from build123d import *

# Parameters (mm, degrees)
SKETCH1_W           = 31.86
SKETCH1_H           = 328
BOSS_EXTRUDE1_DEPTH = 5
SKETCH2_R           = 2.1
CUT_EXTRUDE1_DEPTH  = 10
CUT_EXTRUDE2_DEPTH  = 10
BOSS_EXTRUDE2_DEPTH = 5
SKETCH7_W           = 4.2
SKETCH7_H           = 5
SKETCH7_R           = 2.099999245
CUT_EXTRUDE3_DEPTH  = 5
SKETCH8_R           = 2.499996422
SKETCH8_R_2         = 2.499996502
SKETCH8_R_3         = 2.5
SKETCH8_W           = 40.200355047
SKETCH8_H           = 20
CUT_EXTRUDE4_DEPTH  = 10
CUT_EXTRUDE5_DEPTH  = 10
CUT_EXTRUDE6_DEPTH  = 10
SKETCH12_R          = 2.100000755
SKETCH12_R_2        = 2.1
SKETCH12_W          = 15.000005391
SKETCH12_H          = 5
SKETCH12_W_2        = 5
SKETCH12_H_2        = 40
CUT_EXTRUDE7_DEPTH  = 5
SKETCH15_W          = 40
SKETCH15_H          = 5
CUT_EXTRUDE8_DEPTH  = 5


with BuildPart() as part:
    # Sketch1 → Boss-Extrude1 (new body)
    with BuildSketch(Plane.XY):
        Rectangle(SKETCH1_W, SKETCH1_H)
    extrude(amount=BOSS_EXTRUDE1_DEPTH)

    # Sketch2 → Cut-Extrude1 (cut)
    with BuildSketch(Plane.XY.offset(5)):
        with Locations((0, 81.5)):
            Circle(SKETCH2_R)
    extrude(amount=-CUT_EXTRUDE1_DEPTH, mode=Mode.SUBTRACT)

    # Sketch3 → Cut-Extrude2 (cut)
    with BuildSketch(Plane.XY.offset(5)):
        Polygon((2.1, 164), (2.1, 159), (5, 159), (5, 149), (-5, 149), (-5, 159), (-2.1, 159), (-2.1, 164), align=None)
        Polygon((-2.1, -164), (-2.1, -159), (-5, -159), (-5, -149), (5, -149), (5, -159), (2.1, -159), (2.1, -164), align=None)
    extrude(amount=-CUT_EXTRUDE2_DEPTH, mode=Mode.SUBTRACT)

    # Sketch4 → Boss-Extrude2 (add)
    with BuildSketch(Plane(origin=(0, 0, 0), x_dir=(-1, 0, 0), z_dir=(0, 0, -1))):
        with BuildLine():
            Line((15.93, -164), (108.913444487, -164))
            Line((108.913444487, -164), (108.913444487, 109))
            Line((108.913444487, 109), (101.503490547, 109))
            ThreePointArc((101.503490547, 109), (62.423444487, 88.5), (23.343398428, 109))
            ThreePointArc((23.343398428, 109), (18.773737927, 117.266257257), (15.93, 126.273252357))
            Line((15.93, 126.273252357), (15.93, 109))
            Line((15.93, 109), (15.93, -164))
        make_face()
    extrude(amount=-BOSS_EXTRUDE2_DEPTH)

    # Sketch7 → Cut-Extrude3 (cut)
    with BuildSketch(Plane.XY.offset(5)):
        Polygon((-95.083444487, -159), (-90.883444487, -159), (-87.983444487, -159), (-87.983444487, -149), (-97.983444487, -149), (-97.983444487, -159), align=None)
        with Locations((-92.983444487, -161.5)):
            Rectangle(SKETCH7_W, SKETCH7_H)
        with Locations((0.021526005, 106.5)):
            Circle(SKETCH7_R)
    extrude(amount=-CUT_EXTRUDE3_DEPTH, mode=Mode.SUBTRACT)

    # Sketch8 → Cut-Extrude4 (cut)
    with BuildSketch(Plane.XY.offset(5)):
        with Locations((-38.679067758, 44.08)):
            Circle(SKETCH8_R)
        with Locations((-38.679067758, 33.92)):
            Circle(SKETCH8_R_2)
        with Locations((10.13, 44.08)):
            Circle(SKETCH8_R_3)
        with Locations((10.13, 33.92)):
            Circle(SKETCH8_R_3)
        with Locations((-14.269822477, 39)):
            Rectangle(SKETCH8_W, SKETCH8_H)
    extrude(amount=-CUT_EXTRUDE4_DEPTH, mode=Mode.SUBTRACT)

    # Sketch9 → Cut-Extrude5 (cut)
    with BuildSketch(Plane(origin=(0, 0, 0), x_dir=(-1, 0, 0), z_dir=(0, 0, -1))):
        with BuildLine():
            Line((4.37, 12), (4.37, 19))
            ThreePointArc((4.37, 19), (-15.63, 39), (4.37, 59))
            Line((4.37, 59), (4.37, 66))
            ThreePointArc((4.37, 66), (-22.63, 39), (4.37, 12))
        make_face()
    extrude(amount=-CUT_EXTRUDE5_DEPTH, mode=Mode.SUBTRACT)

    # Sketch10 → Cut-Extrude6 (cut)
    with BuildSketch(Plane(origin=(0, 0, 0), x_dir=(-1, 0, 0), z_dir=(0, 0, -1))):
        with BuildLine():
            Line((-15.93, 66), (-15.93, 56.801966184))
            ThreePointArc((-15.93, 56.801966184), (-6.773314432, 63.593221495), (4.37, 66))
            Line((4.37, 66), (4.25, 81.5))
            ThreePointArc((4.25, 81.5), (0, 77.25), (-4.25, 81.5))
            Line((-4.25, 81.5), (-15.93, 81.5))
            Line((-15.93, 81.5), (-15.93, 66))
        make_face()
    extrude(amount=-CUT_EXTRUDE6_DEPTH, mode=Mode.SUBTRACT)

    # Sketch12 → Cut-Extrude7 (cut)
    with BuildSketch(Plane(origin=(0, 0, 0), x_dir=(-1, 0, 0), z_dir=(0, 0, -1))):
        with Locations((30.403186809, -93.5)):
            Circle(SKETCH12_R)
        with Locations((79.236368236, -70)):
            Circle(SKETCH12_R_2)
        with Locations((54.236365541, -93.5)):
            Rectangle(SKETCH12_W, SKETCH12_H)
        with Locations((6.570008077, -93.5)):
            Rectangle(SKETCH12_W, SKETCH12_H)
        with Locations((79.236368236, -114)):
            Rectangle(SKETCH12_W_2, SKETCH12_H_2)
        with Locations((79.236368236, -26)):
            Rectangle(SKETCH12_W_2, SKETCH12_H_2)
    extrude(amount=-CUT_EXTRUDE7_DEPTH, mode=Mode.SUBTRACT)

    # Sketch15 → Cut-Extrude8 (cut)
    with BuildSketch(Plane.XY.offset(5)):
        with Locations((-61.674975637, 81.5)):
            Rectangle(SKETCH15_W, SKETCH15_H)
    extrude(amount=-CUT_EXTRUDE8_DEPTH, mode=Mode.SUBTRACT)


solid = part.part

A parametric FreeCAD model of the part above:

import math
import FreeCAD as App
import Part
import Sketcher


def add_polygon(sketch, points):
    """Adds a closed chain of lines whose ends are joined by coincident constraints."""
    first, n = sketch.GeometryCount, len(points)
    for a, b in zip(points, points[1:] + points[:1]):
        sketch.addGeometry(Part.LineSegment(App.Vector(*a, 0), App.Vector(*b, 0)), False)
    for i in range(n):
        sketch.addConstraint(Sketcher.Constraint("Coincident", first + i, 2, first + (i + 1) % n, 1))

doc = App.newDocument("Part")
params = doc.addObject("Spreadsheet::Sheet", "Params")
for row, (alias, value) in enumerate([
    ("sketch1_height", "328 mm"),
    ("sketch1_width", "31.86 mm"),
    ("pad1_length", "5 mm"),
    ("sketch2_diameter", "4.2 mm"),
    ("pocket1_length", "10 mm"),
    ("sketch3_width", "10 mm"),
    ("sketch3_height", "5 mm"),
    ("sketch3_width2", "4.2 mm"),
    ("pocket2_length", "10 mm"),
    ("sketch4_radius", "47.5 mm"),
    ("sketch4_height", "273 mm"),
    ("pad2_length", "5 mm"),
    ("sketch5_diameter", "4.199998 mm"),
    ("sketch5_width", "10 mm"),
    ("sketch5_height", "5 mm"),
    ("sketch5_width2", "2.9 mm"),
    ("pocket3_length", "5 mm"),
    ("sketch6_diameter", "5 mm"),
    ("sketch6_height", "20 mm"),
    ("pocket4_length", "10 mm"),
    ("sketch7_radius", "20 mm"),
    ("sketch7_radius2", "27 mm"),
    ("pocket5_length", "10 mm"),
    ("sketch8_radius", "27 mm"),
    ("sketch8_radius2", "4.25 mm"),
    ("sketch8_width", "11.68 mm"),
    ("pocket6_length", "10 mm"),
    ("sketch9_diameter", "4.200002 mm"),
    ("sketch9_width", "5 mm"),
    ("sketch9_height", "40 mm"),
    ("pocket7_length", "5 mm"),
    ("sketch10_width", "40 mm"),
    ("sketch10_height", "5 mm"),
    ("pocket8_length", "5 mm"),
], start=1):
    params.set(f"A{row}", alias)
    params.set(f"B{row}", "=" + value)
    params.setAlias(f"B{row}", alias)

body = doc.addObject("PartDesign::Body", "Body")

# Sketch on XY plane
sketch1 = body.newObject("Sketcher::SketchObject", "Sketch")
sketch1.AttachmentSupport = (doc.getObject("XY_Plane"), [""])
sketch1.MapMode = "FlatFace"
add_polygon(sketch1, [(-16, 164), (-16, -164), (16, -164), (16, 164)])  # lines 0-3
sketch1.addConstraint([
    Sketcher.Constraint("Vertical", 0),
    Sketcher.Constraint("Horizontal", 1),
    Sketcher.Constraint("Vertical", 2),
    Sketcher.Constraint("Horizontal", 3),
    Sketcher.Constraint("Symmetric", 0, 2, 2, 2, -1, 1),
    Sketcher.Constraint("DistanceY", 0, 2, 0, 1, 328.0),
    Sketcher.Constraint("DistanceX", 1, 1, 1, 2, 31.86),
])
sketch1.setExpression("Constraints[9]", "Params.sketch1_height")
sketch1.setExpression("Constraints[10]", "Params.sketch1_width")
pad1 = body.newObject("PartDesign::Pad", "Pad")
pad1.Profile = sketch1
pad1.setExpression("Length", "Params.pad1_length")

# Sketch on XY plane
sketch2 = body.newObject("Sketcher::SketchObject", "Sketch001")
sketch2.AttachmentSupport = (doc.getObject("XY_Plane"), [""])
sketch2.MapMode = "FlatFace"
sketch2.AttachmentOffset = App.Placement(App.Vector(0, 0, 5), App.Rotation())
sketch2.addGeometry(Part.Circle(App.Vector(0, 81.5, 0), App.Vector(0, 0, 1), 2.1), False)
sketch2.addConstraint([
    Sketcher.Constraint("PointOnObject", 0, 3, -2),
    Sketcher.Constraint("Diameter", 0, 4.2),
    Sketcher.Constraint("DistanceY", -1, 1, 0, 3, 81.5),
])
sketch2.setExpression("Constraints[1]", "Params.sketch2_diameter")
pocket1 = body.newObject("PartDesign::Pocket", "Pocket")
pocket1.Profile = sketch2
pocket1.setExpression("Length", "Params.pocket1_length")

# Sketch on XY plane
sketch3 = body.newObject("Sketcher::SketchObject", "Sketch002")
sketch3.AttachmentSupport = (doc.getObject("XY_Plane"), [""])
sketch3.MapMode = "FlatFace"
sketch3.AttachmentOffset = App.Placement(App.Vector(0, 0, 5), App.Rotation())
add_polygon(sketch3, [(2.1, 159), (2.1, 164), (-2.1, 164), (-2.1, 159), (-5, 159), (-5, 149), (5, 149), (5, 159)])  # lines 0-7
add_polygon(sketch3, [(-2.1, -159), (-2.1, -164), (2.1, -164), (2.1, -159), (5, -159), (5, -149), (-5, -149), (-5, -159)])  # lines 8-15
sketch3.addConstraint([
    Sketcher.Constraint("Vertical", 0),
    Sketcher.Constraint("Horizontal", 1),
    Sketcher.Constraint("Vertical", 2),
    Sketcher.Constraint("Horizontal", 3),
    Sketcher.Constraint("Vertical", 4),
    Sketcher.Constraint("Horizontal", 5),
    Sketcher.Constraint("Vertical", 6),
    Sketcher.Constraint("Horizontal", 7),
    Sketcher.Constraint("Vertical", 8),
    Sketcher.Constraint("Horizontal", 9),
    Sketcher.Constraint("Vertical", 10),
    Sketcher.Constraint("Horizontal", 11),
    Sketcher.Constraint("Vertical", 12),
    Sketcher.Constraint("Horizontal", 13),
    Sketcher.Constraint("Vertical", 14),
    Sketcher.Constraint("Horizontal", 15),
    Sketcher.Constraint("Symmetric", 0, 2, 8, 2, -1, 1),
    Sketcher.Constraint("Symmetric", 2, 2, 10, 2, -1, 1),
    Sketcher.Constraint("Symmetric", 4, 2, 12, 2, -1, 1),
    Sketcher.Constraint("Symmetric", 6, 2, 14, 2, -1, 1),
    Sketcher.Constraint("Symmetric", 3, 2, 6, 2, -2),
    Sketcher.Constraint("Vertical", 2, 2, 8, 2),
    Sketcher.Constraint("Equal", 13, 4),
    Sketcher.Constraint("DistanceX", 5, 1, 5, 2, 10.0),
    Sketcher.Constraint("DistanceY", 0, 1, 0, 2, 5.0),
    Sketcher.Constraint("DistanceX", 1, 2, 1, 1, 4.2),
    Sketcher.Constraint("DistanceY", -1, 1, 0, 2, 164.0),
])
sketch3.setExpression("Constraints[39]", "Params.sketch3_width")
sketch3.setExpression("Constraints[40]", "Params.sketch3_height")
sketch3.setExpression("Constraints[41]", "Params.sketch3_width2")
pocket2 = body.newObject("PartDesign::Pocket", "Pocket001")
pocket2.Profile = sketch3
pocket2.setExpression("Length", "Params.pocket2_length")

# Sketch on XY plane
sketch4 = body.newObject("Sketcher::SketchObject", "Sketch003")
sketch4.AttachmentSupport = (doc.getObject("XY_Plane"), [""])
sketch4.MapMode = "FlatFace"
sketch4.addGeometry([
    Part.LineSegment(App.Vector(-16, -164, 0), App.Vector(-109, -164, 0)),  # 0
    Part.LineSegment(App.Vector(-109, -164, 0), App.Vector(-109, 109, 0)),  # 1
    Part.LineSegment(App.Vector(-109, 109, 0), App.Vector(-102, 109, 0)),  # 2
    Part.ArcOfCircle(Part.Circle(App.Vector(-62, 136, 0), App.Vector(0, 0, 1), 48), math.radians(-145), math.radians(-35)),  # 3
    Part.ArcOfCircle(Part.Circle(App.Vector(-62, 136, 0), App.Vector(0, 0, 1), 48), math.radians(-35), math.radians(-12)),  # 4
    Part.LineSegment(App.Vector(-16, 126, 0), App.Vector(-16, -164, 0)),  # 5
], False)
sketch4.addConstraint([
    Sketcher.Constraint("Coincident", 0, 2, 1, 1),
    Sketcher.Constraint("Coincident", 1, 2, 2, 1),
    Sketcher.Constraint("Coincident", 2, 2, 3, 1),
    Sketcher.Constraint("Tangent", 3, 2, 4, 1),
    Sketcher.Constraint("Coincident", 4, 2, 5, 1),
    Sketcher.Constraint("Coincident", 5, 2, 0, 1),
    Sketcher.Constraint("Horizontal", 0),
    Sketcher.Constraint("Vertical", 1),
    Sketcher.Constraint("Horizontal", 2),
    Sketcher.Constraint("Vertical", 5),
    Sketcher.Constraint("Equal", 3, 4),
    Sketcher.Constraint("Horizontal", 2, 2, 3, 2),
    Sketcher.Constraint("Radius", 3, 47.5),
    Sketcher.Constraint("DistanceY", 1, 1, 1, 2, 273.0),
    Sketcher.Constraint("DistanceY", -1, 1, 3, 3, 136.0),
    Sketcher.Constraint("DistanceY", 0, 2, -1, 1, 164.0),
    Sketcher.Constraint("DistanceX", 4, 2, -1, 1, 15.93),
    Sketcher.Constraint("DistanceX", 0, 2, 3, 3, 46.49),
    Sketcher.Constraint("DistanceX", 3, 2, -1, 1, 23.343398),
])
sketch4.setExpression("Constraints[12]", "Params.sketch4_radius")
sketch4.setExpression("Constraints[13]", "Params.sketch4_height")
pad2 = body.newObject("PartDesign::Pad", "Pad001")
pad2.Profile = sketch4
pad2.setExpression("Length", "Params.pad2_length")

# Sketch on XY plane
sketch5 = body.newObject("Sketcher::SketchObject", "Sketch004")
sketch5.AttachmentSupport = (doc.getObject("XY_Plane"), [""])
sketch5.MapMode = "FlatFace"
sketch5.AttachmentOffset = App.Placement(App.Vector(0, 0, 5), App.Rotation())
add_polygon(sketch5, [(-88, -159), (-88, -149), (-98, -149), (-98, -159), (-95.1, -159), (-95.1, -164), (-90.9, -164), (-90.9, -159)])  # lines 0-7
sketch5.addGeometry(Part.Circle(App.Vector(0, 106.5, 0), App.Vector(0, 0, 1), 2.1), False)  # 8
sketch5.addConstraint([
    Sketcher.Constraint("Vertical", 0),
    Sketcher.Constraint("Horizontal", 1),
    Sketcher.Constraint("Vertical", 2),
    Sketcher.Constraint("Horizontal", 3),
    Sketcher.Constraint("Vertical", 4),
    Sketcher.Constraint("Horizontal", 5),
    Sketcher.Constraint("Vertical", 6),
    Sketcher.Constraint("Horizontal", 7),
    Sketcher.Constraint("Horizontal", 3, 2, 6, 2),
    Sketcher.Constraint("Equal", 3, 7),
    Sketcher.Constraint("Equal", 1, 0),
    Sketcher.Constraint("Diameter", 8, 4.199998),
    Sketcher.Constraint("DistanceX", 1, 2, 1, 1, 10.0),
    Sketcher.Constraint("DistanceY", 4, 2, 4, 1, 5.0),
    Sketcher.Constraint("DistanceX", 3, 1, 3, 2, 2.9),
    Sketcher.Constraint("DistanceY", 0, 2, -1, 1, 149.0),
    Sketcher.Constraint("DistanceY", -1, 1, 8, 3, 106.5),
    Sketcher.Constraint("DistanceX", 0, 2, 8, 3, 88.00497),
    Sketcher.Constraint("DistanceX", -1, 1, 8, 3, 0.021526),
])
sketch5.setExpression("Constraints[19]", "Params.sketch5_diameter")
sketch5.setExpression("Constraints[20]", "Params.sketch5_width")
sketch5.setExpression("Constraints[21]", "Params.sketch5_height")
sketch5.setExpression("Constraints[22]", "Params.sketch5_width2")
pocket3 = body.newObject("PartDesign::Pocket", "Pocket002")
pocket3.Profile = sketch5
pocket3.setExpression("Length", "Params.pocket3_length")

# Sketch on XY plane
sketch6 = body.newObject("Sketcher::SketchObject", "Sketch005")
sketch6.AttachmentSupport = (doc.getObject("XY_Plane"), [""])
sketch6.MapMode = "FlatFace"
sketch6.AttachmentOffset = App.Placement(App.Vector(0, 0, 5), App.Rotation())
sketch6.addGeometry(Part.Circle(App.Vector(-38.7, 44.1, 0), App.Vector(0, 0, 1), 2.5), False)  # 0
sketch6.addGeometry(Part.Circle(App.Vector(-38.7, 33.9, 0), App.Vector(0, 0, 1), 2.5), False)  # 1
sketch6.addGeometry(Part.Circle(App.Vector(10.1, 44.1, 0), App.Vector(0, 0, 1), 2.5), False)  # 2
sketch6.addGeometry(Part.Circle(App.Vector(10.1, 33.9, 0), App.Vector(0, 0, 1), 2.5), False)  # 3
add_polygon(sketch6, [(-34.4, 49), (-34.4, 29), (5.8, 29), (5.8, 49)])  # lines 4-7
sketch6.addConstraint([
    Sketcher.Constraint("Vertical", 4),
    Sketcher.Constraint("Horizontal", 5),
    Sketcher.Constraint("Vertical", 6),
    Sketcher.Constraint("Horizontal", 7),
    Sketcher.Constraint("Equal", 0, 1),
    Sketcher.Constraint("Equal", 2, 3),
    Sketcher.Constraint("Horizontal", 0, 3, 2, 3),
    Sketcher.Constraint("Horizontal", 1, 3, 3, 3),
    Sketcher.Constraint("Vertical", 0, 3, 1, 3),
    Sketcher.Constraint("Vertical", 2, 3, 3, 3),
    Sketcher.Constraint("Diameter", 2, 5.0),
    Sketcher.Constraint("DistanceY", 4, 2, 4, 1, 20.0),
    Sketcher.Constraint("DistanceY", -1, 1, 4, 2, 29.0),
    Sketcher.Constraint("DistanceX", 4, 2, 3, 3, 44.5),
    Sketcher.Constraint("DistanceY", -1, 1, 0, 3, 44.08),
    Sketcher.Constraint("DistanceY", -1, 1, 1, 3, 33.92),
    Sketcher.Constraint("DistanceX", -1, 1, 2, 3, 10.13),
    Sketcher.Constraint("Diameter", 0, 4.999993),
    Sketcher.Constraint("DistanceX", 5, 1, 5, 2, 40.200355),
    Sketcher.Constraint("DistanceX", 0, 3, -1, 1, 38.679068),
])
sketch6.setExpression("Constraints[14]", "Params.sketch6_diameter")
sketch6.setExpression("Constraints[15]", "Params.sketch6_height")
pocket4 = body.newObject("PartDesign::Pocket", "Pocket003")
pocket4.Profile = sketch6
pocket4.setExpression("Length", "Params.pocket4_length")

# Sketch on XY plane
sketch7 = body.newObject("Sketcher::SketchObject", "Sketch006")
sketch7.AttachmentSupport = (doc.getObject("XY_Plane"), [""])
sketch7.MapMode = "FlatFace"
sketch7.addGeometry([
    Part.LineSegment(App.Vector(-4, 12, 0), App.Vector(-4, 19, 0)),
    Part.ArcOfCircle(Part.Circle(App.Vector(-4, 39, 0), App.Vector(0, 0, 1), 20), math.radians(-90), math.radians(90)),
    Part.LineSegment(App.Vector(-4, 59, 0), App.Vector(-4, 66, 0)),
    Part.ArcOfCircle(Part.Circle(App.Vector(-4, 39, 0), App.Vector(0, 0, 1), 27), math.radians(-90), math.radians(90)),
], False)
sketch7.addConstraint([
    Sketcher.Constraint("Coincident", 0, 2, 1, 1),
    Sketcher.Constraint("Coincident", 1, 2, 2, 1),
    Sketcher.Constraint("Coincident", 2, 2, 3, 2),
    Sketcher.Constraint("Coincident", 3, 1, 0, 1),
    Sketcher.Constraint("Vertical", 0),
    Sketcher.Constraint("Vertical", 2),
    Sketcher.Constraint("Coincident", 3, 3, 1, 3),
    Sketcher.Constraint("Vertical", 3, 3, 0, 2),
    Sketcher.Constraint("Vertical", 0, 2, 1, 2),
    Sketcher.Constraint("Radius", 1, 20.0),
    Sketcher.Constraint("Radius", 3, 27.0),
    Sketcher.Constraint("DistanceY", -1, 1, 1, 3, 39.0),
    Sketcher.Constraint("DistanceX", 1, 3, -1, 1, 4.37),
])
sketch7.setExpression("Constraints[9]", "Params.sketch7_radius")
sketch7.setExpression("Constraints[10]", "Params.sketch7_radius2")
pocket5 = body.newObject("PartDesign::Pocket", "Pocket004")
pocket5.Profile = sketch7
pocket5.setExpression("Length", "Params.pocket5_length")
pocket5.Reversed = True

# Sketch on XY plane
sketch8 = body.newObject("Sketcher::SketchObject", "Sketch007")
sketch8.AttachmentSupport = (doc.getObject("XY_Plane"), [""])
sketch8.MapMode = "FlatFace"
sketch8.addGeometry([
    Part.ArcOfCircle(Part.Circle(App.Vector(-4.4, 39, 0), App.Vector(0, 0, 1), 27), math.radians(41), math.radians(90)),  # 0
    Part.LineSegment(App.Vector(-4.4, 66, 0), App.Vector(-4.2, 81.5, 0)),  # 1
    Part.ArcOfCircle(Part.Circle(App.Vector(0, 81.5, 0), App.Vector(0, 0, 1), 4.2), math.radians(180), math.radians(360)),  # 2
    Part.LineSegment(App.Vector(4.2, 81.5, 0), App.Vector(15.9, 81.5, 0)),  # 3
    Part.LineSegment(App.Vector(15.9, 81.5, 0), App.Vector(15.9, 56.8, 0)),  # 4
], False)
sketch8.addConstraint([
    Sketcher.Constraint("Coincident", 0, 2, 1, 1),
    Sketcher.Constraint("Coincident", 1, 2, 2, 1),
    Sketcher.Constraint("Coincident", 2, 2, 3, 1),
    Sketcher.Constraint("Coincident", 3, 2, 4, 1),
    Sketcher.Constraint("Coincident", 4, 2, 0, 1),
    Sketcher.Constraint("Horizontal", 3),
    Sketcher.Constraint("Vertical", 4),
    Sketcher.Constraint("Symmetric", 1, 2, 2, 2, -2),
    Sketcher.Constraint("Horizontal", 2, 3, 1, 2),
    Sketcher.Constraint("Radius", 0, 27.0),
    Sketcher.Constraint("Radius", 2, 4.25),
    Sketcher.Constraint("DistanceY", -1, 1, 0, 3, 39.0),
    Sketcher.Constraint("DistanceX", 3, 1, 3, 2, 11.68),
    Sketcher.Constraint("DistanceY", -1, 1, 2, 3, 81.5),
    Sketcher.Constraint("DistanceX", 0, 2, 3, 2, 20.3),
    Sketcher.Constraint("DistanceX", 0, 3, 3, 2, 20.3),
])
sketch8.setExpression("Constraints[9]", "Params.sketch8_radius")
sketch8.setExpression("Constraints[10]", "Params.sketch8_radius2")
sketch8.setExpression("Constraints[12]", "Params.sketch8_width")
pocket6 = body.newObject("PartDesign::Pocket", "Pocket005")
pocket6.Profile = sketch8
pocket6.setExpression("Length", "Params.pocket6_length")
pocket6.Reversed = True

# Sketch on XY plane
sketch9 = body.newObject("Sketcher::SketchObject", "Sketch008")
sketch9.AttachmentSupport = (doc.getObject("XY_Plane"), [""])
sketch9.MapMode = "FlatFace"
sketch9.addGeometry(Part.Circle(App.Vector(-30.4, -93.5, 0), App.Vector(0, 0, 1), 2.1), False)  # 0
sketch9.addGeometry(Part.Circle(App.Vector(-79.2, -70, 0), App.Vector(0, 0, 1), 2.1), False)  # 1
add_polygon(sketch9, [(-46.7, -91), (-46.7, -96), (-61.7, -96), (-61.7, -91)])  # lines 2-5
add_polygon(sketch9, [(0.9, -91), (0.9, -96), (-14.1, -96), (-14.1, -91)])  # lines 6-9
add_polygon(sketch9, [(-76.7, -94), (-76.7, -134), (-81.7, -134), (-81.7, -94)])  # lines 10-13
add_polygon(sketch9, [(-76.7, -6), (-76.7, -46), (-81.7, -46), (-81.7, -6)])  # lines 14-17
sketch9.addConstraint([
    Sketcher.Constraint("Vertical", 2),
    Sketcher.Constraint("Horizontal", 3),
    Sketcher.Constraint("Vertical", 4),
    Sketcher.Constraint("Horizontal", 5),
    Sketcher.Constraint("Vertical", 6),
    Sketcher.Constraint("Horizontal", 7),
    Sketcher.Constraint("Vertical", 8),
    Sketcher.Constraint("Horizontal", 9),
    Sketcher.Constraint("Vertical", 10),
    Sketcher.Constraint("Horizontal", 11),
    Sketcher.Constraint("Vertical", 12),
    Sketcher.Constraint("Horizontal", 13),
    Sketcher.Constraint("Vertical", 14),
    Sketcher.Constraint("Horizontal", 15),
    Sketcher.Constraint("Vertical", 16),
    Sketcher.Constraint("Horizontal", 17),
    Sketcher.Constraint("Equal", 0, 1),
    Sketcher.Constraint("Horizontal", 3, 2, 6, 2),
    Sketcher.Constraint("Horizontal", 5, 2, 8, 2),
    Sketcher.Constraint("Vertical", 13, 2, 14, 2),
    Sketcher.Constraint("Vertical", 12, 2, 15, 2),
    Sketcher.Constraint("Equal", 5, 7),
    Sketcher.Constraint("Equal", 17, 2),
    Sketcher.Constraint("Equal", 12, 14),
    Sketcher.Constraint("Diameter", 0, 4.200002),
    Sketcher.Constraint("DistanceX", 11, 2, 11, 1, 5.0),
    Sketcher.Constraint("DistanceY", 10, 2, 10, 1, 40.0),
    Sketcher.Constraint("DistanceY", 1, 3, -1, 1, 70.0),
    Sketcher.Constraint("DistanceY", 2, 2, -1, 1, 96.0),
    Sketcher.Constraint("DistanceY", 10, 2, -1, 1, 134.0),
    Sketcher.Constraint("DistanceY", 14, 2, -1, 1, 46.0),
    Sketcher.Constraint("DistanceX", 10, 2, 3, 2, 15.0),
    Sketcher.Constraint("DistanceY", 0, 3, -1, 1, 93.5),
    Sketcher.Constraint("DistanceX", 1, 3, 3, 2, 17.5),
    Sketcher.Constraint("DistanceX", 3, 2, 3, 1, 15.000005),
    Sketcher.Constraint("DistanceX", 1, 3, -1, 1, 79.236368),
    Sketcher.Constraint("DistanceX", 7, 2, -1, 1, 14.070011),
    Sketcher.Constraint("DistanceX", 1, 3, 0, 3, 48.833181),
])
sketch9.setExpression("Constraints[40]", "Params.sketch9_diameter")
sketch9.setExpression("Constraints[41]", "Params.sketch9_width")
sketch9.setExpression("Constraints[42]", "Params.sketch9_height")
pocket7 = body.newObject("PartDesign::Pocket", "Pocket006")
pocket7.Profile = sketch9
pocket7.setExpression("Length", "Params.pocket7_length")
pocket7.Reversed = True

# Sketch on XY plane
sketch10 = body.newObject("Sketcher::SketchObject", "Sketch009")
sketch10.AttachmentSupport = (doc.getObject("XY_Plane"), [""])
sketch10.MapMode = "FlatFace"
sketch10.AttachmentOffset = App.Placement(App.Vector(0, 0, 5), App.Rotation())
add_polygon(sketch10, [(-82, 84), (-82, 79), (-42, 79), (-42, 84)])  # lines 0-3
sketch10.addConstraint([
    Sketcher.Constraint("Vertical", 0),
    Sketcher.Constraint("Horizontal", 1),
    Sketcher.Constraint("Vertical", 2),
    Sketcher.Constraint("Horizontal", 3),
    Sketcher.Constraint("DistanceX", 1, 1, 1, 2, 40.0),
    Sketcher.Constraint("DistanceY", 0, 2, 0, 1, 5.0),
    Sketcher.Constraint("DistanceY", -1, 1, 0, 2, 79.0),
    Sketcher.Constraint("DistanceX", 0, 2, -1, 1, 81.674976),
])
sketch10.setExpression("Constraints[8]", "Params.sketch10_width")
sketch10.setExpression("Constraints[9]", "Params.sketch10_height")
pocket8 = body.newObject("PartDesign::Pocket", "Pocket007")
pocket8.Profile = sketch10
pocket8.setExpression("Length", "Params.pocket8_length")

doc.recompute()
